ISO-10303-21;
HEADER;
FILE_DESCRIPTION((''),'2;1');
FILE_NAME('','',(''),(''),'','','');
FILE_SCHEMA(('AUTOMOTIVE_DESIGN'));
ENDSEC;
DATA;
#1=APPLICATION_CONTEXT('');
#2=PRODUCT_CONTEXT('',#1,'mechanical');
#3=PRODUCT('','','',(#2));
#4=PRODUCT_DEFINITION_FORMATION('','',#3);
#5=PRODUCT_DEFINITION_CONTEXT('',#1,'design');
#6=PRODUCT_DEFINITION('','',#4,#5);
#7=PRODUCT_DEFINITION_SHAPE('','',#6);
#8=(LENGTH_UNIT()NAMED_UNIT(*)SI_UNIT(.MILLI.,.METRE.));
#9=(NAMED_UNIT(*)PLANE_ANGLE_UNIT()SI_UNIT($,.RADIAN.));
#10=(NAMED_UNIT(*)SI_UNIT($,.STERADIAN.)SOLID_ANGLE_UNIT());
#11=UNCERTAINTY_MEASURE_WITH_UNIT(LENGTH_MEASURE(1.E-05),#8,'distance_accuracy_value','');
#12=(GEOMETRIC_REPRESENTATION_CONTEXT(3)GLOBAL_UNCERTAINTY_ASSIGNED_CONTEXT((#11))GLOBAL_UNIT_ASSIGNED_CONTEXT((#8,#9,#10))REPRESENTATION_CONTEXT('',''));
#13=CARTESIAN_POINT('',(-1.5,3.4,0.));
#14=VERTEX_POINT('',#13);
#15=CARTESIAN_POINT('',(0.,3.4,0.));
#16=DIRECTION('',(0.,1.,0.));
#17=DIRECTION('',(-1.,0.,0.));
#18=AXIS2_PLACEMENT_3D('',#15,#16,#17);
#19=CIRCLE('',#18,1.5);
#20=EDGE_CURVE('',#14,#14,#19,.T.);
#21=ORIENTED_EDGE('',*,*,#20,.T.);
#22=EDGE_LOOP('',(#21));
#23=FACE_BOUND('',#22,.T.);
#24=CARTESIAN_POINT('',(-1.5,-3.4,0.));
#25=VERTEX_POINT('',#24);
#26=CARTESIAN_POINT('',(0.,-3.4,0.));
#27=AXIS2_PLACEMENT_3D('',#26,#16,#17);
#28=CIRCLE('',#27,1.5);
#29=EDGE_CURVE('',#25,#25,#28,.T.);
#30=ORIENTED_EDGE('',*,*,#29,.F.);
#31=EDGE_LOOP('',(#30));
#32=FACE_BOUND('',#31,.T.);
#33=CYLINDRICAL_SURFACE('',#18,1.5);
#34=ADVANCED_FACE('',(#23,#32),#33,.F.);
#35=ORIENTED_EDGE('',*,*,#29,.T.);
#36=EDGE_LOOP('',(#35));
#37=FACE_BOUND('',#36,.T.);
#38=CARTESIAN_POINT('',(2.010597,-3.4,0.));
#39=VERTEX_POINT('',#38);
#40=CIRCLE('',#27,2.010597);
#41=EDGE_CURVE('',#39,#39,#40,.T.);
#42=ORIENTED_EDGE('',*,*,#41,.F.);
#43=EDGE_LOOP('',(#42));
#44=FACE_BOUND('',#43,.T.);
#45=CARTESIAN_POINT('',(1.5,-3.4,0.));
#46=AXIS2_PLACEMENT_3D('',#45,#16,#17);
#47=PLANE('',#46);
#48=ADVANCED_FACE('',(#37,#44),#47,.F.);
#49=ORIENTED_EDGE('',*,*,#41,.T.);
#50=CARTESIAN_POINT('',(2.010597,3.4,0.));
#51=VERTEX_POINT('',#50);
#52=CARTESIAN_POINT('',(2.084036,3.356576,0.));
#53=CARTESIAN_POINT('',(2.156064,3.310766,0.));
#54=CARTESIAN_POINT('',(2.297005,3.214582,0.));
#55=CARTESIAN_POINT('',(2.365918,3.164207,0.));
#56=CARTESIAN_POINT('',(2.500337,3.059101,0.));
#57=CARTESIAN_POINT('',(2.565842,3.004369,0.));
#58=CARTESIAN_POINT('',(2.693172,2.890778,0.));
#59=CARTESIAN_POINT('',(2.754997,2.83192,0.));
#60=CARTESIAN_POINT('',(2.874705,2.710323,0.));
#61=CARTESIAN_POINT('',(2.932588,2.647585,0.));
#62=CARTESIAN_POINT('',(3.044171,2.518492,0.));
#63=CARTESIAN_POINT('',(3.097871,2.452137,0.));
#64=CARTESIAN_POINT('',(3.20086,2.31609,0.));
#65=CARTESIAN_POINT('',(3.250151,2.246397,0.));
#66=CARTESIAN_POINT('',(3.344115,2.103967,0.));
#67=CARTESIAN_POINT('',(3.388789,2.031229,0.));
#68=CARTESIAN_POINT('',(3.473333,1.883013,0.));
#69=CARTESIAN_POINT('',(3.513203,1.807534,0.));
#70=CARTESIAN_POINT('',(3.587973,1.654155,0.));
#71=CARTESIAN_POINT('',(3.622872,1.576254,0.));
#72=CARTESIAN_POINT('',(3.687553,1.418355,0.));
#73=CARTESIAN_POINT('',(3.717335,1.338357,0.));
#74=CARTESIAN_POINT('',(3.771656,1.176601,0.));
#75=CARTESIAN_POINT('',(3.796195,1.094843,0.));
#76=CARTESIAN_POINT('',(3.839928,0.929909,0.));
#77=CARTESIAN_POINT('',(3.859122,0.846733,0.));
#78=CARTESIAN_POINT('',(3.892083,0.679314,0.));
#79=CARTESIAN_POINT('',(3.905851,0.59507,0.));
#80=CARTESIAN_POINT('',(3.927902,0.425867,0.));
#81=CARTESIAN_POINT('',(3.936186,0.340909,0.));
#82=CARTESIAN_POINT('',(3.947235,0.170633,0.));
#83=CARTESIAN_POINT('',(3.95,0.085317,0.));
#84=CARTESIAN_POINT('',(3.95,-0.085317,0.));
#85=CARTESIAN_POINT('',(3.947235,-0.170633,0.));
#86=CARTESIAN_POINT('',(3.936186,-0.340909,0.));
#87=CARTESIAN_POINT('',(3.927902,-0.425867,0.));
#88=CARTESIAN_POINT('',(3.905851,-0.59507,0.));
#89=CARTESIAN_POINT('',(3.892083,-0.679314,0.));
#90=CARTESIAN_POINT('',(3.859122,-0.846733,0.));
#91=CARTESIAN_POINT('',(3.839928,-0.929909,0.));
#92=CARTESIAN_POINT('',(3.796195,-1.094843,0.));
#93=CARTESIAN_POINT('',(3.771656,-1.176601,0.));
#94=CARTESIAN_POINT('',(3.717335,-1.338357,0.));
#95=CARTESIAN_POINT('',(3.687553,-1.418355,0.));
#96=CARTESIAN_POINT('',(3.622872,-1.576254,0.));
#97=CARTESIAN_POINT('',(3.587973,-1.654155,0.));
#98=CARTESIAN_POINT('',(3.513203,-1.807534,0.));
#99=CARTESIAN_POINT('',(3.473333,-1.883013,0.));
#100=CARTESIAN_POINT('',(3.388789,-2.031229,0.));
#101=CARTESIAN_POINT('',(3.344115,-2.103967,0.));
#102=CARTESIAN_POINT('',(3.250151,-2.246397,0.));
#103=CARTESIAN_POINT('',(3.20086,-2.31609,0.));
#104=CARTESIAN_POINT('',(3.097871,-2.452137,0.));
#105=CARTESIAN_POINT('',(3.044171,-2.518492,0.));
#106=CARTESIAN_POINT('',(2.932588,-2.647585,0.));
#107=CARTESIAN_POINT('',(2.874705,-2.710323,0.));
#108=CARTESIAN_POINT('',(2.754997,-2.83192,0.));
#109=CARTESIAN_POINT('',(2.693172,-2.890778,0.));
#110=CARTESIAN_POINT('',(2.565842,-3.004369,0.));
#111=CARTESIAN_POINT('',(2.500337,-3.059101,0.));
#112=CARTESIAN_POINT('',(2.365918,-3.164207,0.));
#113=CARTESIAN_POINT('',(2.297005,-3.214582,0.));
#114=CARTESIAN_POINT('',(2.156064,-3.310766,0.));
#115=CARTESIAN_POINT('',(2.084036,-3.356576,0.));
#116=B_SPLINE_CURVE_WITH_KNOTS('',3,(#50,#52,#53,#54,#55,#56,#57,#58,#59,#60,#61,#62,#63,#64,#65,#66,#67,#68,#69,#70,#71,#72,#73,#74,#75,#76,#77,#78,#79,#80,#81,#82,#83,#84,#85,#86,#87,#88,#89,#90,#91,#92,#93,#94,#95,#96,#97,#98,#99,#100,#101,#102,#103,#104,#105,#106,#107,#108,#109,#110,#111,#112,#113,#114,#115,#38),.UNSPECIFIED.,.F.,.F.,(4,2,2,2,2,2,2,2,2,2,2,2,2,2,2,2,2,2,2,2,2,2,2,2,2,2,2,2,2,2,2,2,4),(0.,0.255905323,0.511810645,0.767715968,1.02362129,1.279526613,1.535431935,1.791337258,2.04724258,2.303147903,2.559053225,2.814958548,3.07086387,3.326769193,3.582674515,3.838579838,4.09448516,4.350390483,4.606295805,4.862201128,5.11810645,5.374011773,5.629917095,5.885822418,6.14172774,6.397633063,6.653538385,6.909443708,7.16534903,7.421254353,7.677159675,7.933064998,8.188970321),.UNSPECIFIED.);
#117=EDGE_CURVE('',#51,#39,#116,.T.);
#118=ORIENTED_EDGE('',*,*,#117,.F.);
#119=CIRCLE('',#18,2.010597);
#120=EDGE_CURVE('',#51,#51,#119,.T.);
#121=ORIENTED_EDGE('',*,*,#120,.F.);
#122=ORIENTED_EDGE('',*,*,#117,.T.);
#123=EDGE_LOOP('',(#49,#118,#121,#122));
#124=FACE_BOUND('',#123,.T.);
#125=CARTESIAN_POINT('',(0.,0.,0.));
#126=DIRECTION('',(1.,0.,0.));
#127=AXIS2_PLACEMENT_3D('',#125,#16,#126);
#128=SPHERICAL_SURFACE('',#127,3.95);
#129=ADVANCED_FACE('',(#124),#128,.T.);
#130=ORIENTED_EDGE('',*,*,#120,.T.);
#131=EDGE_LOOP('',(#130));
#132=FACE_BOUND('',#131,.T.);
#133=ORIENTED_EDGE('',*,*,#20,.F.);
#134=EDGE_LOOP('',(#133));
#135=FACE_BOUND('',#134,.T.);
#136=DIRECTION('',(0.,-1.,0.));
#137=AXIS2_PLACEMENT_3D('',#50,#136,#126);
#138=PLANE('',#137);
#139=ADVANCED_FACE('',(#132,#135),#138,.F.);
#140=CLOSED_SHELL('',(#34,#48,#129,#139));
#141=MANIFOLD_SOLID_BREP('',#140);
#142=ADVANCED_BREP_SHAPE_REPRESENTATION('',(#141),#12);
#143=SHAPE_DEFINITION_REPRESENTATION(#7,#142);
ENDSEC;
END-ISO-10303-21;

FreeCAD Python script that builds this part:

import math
import FreeCAD as App
import Part
import Sketcher

V = App.Vector
Q = App.Units.Quantity

doc = App.newDocument("Part")
body = doc.addObject("PartDesign::Body", "Body")

# Sketch on XY plane
sketch1 = body.newObject("Sketcher::SketchObject", "Sketch")
sketch1.AttachmentSupport = (doc.getObject("XY_Plane"), [""])
sketch1.MapMode = "FlatFace"
sketch1.addGeometry(Part.LineSegment(V(2, 3.4, 0), V(1.5, 3.4, 0)), False)
sketch1.addGeometry(Part.LineSegment(V(1.5, 3.4, 0), V(1.5, -3.4, 0)), False)
sketch1.addGeometry(Part.LineSegment(V(1.5, -3.4, 0), V(2, -3.4, 0)), False)
sketch1.addGeometry(Part.ArcOfCircle(Part.Circle(V(0, 0, 0), V(0, 0, 1), 4), math.radians(-59), math.radians(59)), False)
sketch1.addConstraint(Sketcher.Constraint("Coincident", 0, 2, 1, 1))
sketch1.addConstraint(Sketcher.Constraint("Coincident", 1, 2, 2, 1))
sketch1.addConstraint(Sketcher.Constraint("Coincident", 2, 2, 3, 1))
sketch1.addConstraint(Sketcher.Constraint("Coincident", 3, 2, 0, 1))
sketch1.addConstraint(Sketcher.Constraint("Horizontal", 0))
sketch1.addConstraint(Sketcher.Constraint("Vertical", 1))
sketch1.addConstraint(Sketcher.Constraint("Horizontal", 2))
sketch1.addConstraint(Sketcher.Constraint("Coincident", 3, 3, -1, 1))
sketch1.addConstraint(Sketcher.Constraint("Vertical", 2, 2, 3, 2))
sketch1.addConstraint(Sketcher.Constraint("Radius", 3, Q("3.95 mm")))
sketch1.addConstraint(Sketcher.Constraint("DistanceY", 1, 2, 1, 1, Q("6.8 mm")))
sketch1.addConstraint(Sketcher.Constraint("DistanceX", -1, 1, 0, 2, Q("1.5 mm")))
revolution = body.newObject("PartDesign::Revolution", "Revolution")
revolution.Profile = sketch1
revolution.ReferenceAxis = (sketch1, ["V_Axis"])
revolution.Angle = 360

doc.recompute()
